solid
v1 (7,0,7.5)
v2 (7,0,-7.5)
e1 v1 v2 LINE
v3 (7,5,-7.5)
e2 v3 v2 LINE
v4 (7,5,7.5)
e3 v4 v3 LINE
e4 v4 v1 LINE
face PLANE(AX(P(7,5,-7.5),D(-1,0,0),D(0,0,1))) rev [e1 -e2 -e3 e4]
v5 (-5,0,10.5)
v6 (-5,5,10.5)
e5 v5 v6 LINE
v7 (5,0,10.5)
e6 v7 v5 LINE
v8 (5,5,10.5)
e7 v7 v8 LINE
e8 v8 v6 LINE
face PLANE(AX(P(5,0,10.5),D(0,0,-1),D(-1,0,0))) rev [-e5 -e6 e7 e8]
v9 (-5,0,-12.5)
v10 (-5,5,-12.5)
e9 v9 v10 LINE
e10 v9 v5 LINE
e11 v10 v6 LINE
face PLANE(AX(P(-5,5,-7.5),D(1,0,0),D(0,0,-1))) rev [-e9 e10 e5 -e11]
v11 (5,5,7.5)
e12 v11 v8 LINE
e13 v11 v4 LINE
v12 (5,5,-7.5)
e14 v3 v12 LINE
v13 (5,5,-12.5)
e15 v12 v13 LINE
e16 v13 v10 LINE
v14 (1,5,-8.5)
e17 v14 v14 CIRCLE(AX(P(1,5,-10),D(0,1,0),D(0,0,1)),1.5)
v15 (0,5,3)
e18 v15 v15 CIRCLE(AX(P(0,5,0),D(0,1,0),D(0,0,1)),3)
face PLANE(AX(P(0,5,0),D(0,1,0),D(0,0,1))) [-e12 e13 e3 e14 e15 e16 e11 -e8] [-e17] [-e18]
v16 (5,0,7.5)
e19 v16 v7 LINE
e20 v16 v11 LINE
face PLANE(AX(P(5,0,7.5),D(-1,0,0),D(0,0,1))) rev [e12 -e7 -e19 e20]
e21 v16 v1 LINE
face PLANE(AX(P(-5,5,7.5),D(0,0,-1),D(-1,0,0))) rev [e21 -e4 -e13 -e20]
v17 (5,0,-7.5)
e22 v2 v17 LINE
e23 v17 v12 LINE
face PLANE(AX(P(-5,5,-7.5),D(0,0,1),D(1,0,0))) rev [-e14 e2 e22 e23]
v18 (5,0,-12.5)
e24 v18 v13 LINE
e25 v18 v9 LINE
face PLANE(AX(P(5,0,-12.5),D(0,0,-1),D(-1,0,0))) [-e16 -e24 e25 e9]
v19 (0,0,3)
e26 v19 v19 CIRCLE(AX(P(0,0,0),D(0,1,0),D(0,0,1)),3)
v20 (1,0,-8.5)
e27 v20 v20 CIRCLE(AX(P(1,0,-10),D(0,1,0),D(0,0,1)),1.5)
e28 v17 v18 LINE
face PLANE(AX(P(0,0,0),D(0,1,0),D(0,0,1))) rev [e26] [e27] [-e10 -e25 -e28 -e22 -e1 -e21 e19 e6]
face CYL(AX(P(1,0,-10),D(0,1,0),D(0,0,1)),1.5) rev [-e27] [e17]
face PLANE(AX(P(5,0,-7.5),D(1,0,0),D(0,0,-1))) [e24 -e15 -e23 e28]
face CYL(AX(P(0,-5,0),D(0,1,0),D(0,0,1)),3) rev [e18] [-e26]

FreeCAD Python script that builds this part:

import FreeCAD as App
import Part
import Sketcher
Q = App.Units.Quantity


def add_polygon(sketch, points):
    """Adds a closed chain of lines whose ends are joined by coincident constraints."""
    first, n = sketch.GeometryCount, len(points)
    for a, b in zip(points, points[1:] + points[:1]):
        sketch.addGeometry(Part.LineSegment(App.Vector(*a, 0), App.Vector(*b, 0)), False)
    for i in range(n):
        sketch.addConstraint(Sketcher.Constraint("Coincident", first + i, 2, first + (i + 1) % n, 1))

doc = App.newDocument("Part")
body = doc.addObject("PartDesign::Body", "Body")

# Sketch on XZ plane
sketch1 = body.newObject("Sketcher::SketchObject", "Sketch")
sketch1.AttachmentSupport = (doc.getObject("XZ_Plane"), [""])
sketch1.MapMode = "FlatFace"
add_polygon(sketch1, [(-5, -8), (-5, 8), (7, 8), (7, -8)])  # lines 0-3
sketch1.addConstraint([
    Sketcher.Constraint("Vertical", 0),
    Sketcher.Constraint("Horizontal", 1),
    Sketcher.Constraint("Vertical", 2),
    Sketcher.Constraint("Horizontal", 3),
    Sketcher.Constraint("DistanceX", 1, 1, 1, 2, Q("12 mm")),
    Sketcher.Constraint("DistanceY", 0, 1, 0, 2, Q("15 mm")),
    Sketcher.Constraint("DistanceX", 0, 2, -1, 1, Q("5 mm")),
    Sketcher.Constraint("DistanceY", -1, 1, 0, 2, Q("7.5 mm")),
])
pad1 = body.newObject("PartDesign::Pad", "Pad")
pad1.Profile = sketch1
pad1.Length = 5
pad1.Reversed = True

# Sketch on XZ plane
sketch2 = body.newObject("Sketcher::SketchObject", "Sketch001")
sketch2.AttachmentSupport = (doc.getObject("XZ_Plane"), [""])
sketch2.MapMode = "FlatFace"
sketch2.AttachmentOffset = App.Placement(App.Vector(0, 0, -5), App.Rotation())
add_polygon(sketch2, [(-5, -12.5), (-5, -7.5), (5, -7.5), (5, -12.5)])  # lines 0-3
add_polygon(sketch2, [(-5, 7.5), (-5, 10.5), (5, 10.5), (5, 7.5)])  # lines 4-7
sketch2.addConstraint([
    Sketcher.Constraint("Vertical", 0),
    Sketcher.Constraint("Horizontal", 1),
    Sketcher.Constraint("Vertical", 2),
    Sketcher.Constraint("Horizontal", 3),
    Sketcher.Constraint("Vertical", 4),
    Sketcher.Constraint("Horizontal", 5),
    Sketcher.Constraint("Vertical", 6),
    Sketcher.Constraint("Horizontal", 7),
    Sketcher.Constraint("Symmetric", 0, 2, 6, 2, -1, 1),
    Sketcher.Constraint("Vertical", 3, 2, 4, 2),
    Sketcher.Constraint("Vertical", 2, 2, 5, 2),
    Sketcher.Constraint("DistanceX", 1, 1, 1, 2, Q("10 mm")),
    Sketcher.Constraint("DistanceY", 0, 1, 0, 2, Q("5 mm")),
    Sketcher.Constraint("DistanceY", 4, 1, 4, 2, Q("3 mm")),
    Sketcher.Constraint("DistanceY", 0, 2, 4, 2, Q("18 mm")),
])
pad2 = body.newObject("PartDesign::Pad", "Pad001")
pad2.Profile = sketch2
pad2.Length = 5

# Sketch on XZ plane
sketch3 = body.newObject("Sketcher::SketchObject", "Sketch002")
sketch3.AttachmentSupport = (doc.getObject("XZ_Plane"), [""])
sketch3.MapMode = "FlatFace"
sketch3.AttachmentOffset = App.Placement(App.Vector(0, 0, -5), App.Rotation())
sketch3.addGeometry(Part.Circle(App.Vector(1, -10, 0), App.Vector(0, 0, 1), 1.5), False)
sketch3.addConstraint([
    Sketcher.Constraint("Diameter", 0, Q("3 mm")),
    Sketcher.Constraint("DistanceX", -1, 1, 0, 3, Q("1 mm")),
    Sketcher.Constraint("DistanceY", 0, 3, -1, 1, Q("10 mm")),
])
pocket1 = body.newObject("PartDesign::Pocket", "Pocket")
pocket1.Profile = sketch3
pocket1.Length = 5
pocket1.Reversed = True

# Sketch on XZ plane
sketch4 = body.newObject("Sketcher::SketchObject", "Sketch003")
sketch4.AttachmentSupport = (doc.getObject("XZ_Plane"), [""])
sketch4.MapMode = "FlatFace"
sketch4.AttachmentOffset = App.Placement(App.Vector(0, 0, -5), App.Rotation())
sketch4.addGeometry(Part.Circle(App.Vector(0, 0, 0), App.Vector(0, 0, 1), 3), False)
sketch4.addConstraint([
    Sketcher.Constraint("Coincident", 0, 3, -1, 1),
    Sketcher.Constraint("Diameter", 0, Q("6 mm")),
])
pocket2 = body.newObject("PartDesign::Pocket", "Pocket001")
pocket2.Profile = sketch4
pocket2.Length = 10
pocket2.Reversed = True

doc.recompute()
